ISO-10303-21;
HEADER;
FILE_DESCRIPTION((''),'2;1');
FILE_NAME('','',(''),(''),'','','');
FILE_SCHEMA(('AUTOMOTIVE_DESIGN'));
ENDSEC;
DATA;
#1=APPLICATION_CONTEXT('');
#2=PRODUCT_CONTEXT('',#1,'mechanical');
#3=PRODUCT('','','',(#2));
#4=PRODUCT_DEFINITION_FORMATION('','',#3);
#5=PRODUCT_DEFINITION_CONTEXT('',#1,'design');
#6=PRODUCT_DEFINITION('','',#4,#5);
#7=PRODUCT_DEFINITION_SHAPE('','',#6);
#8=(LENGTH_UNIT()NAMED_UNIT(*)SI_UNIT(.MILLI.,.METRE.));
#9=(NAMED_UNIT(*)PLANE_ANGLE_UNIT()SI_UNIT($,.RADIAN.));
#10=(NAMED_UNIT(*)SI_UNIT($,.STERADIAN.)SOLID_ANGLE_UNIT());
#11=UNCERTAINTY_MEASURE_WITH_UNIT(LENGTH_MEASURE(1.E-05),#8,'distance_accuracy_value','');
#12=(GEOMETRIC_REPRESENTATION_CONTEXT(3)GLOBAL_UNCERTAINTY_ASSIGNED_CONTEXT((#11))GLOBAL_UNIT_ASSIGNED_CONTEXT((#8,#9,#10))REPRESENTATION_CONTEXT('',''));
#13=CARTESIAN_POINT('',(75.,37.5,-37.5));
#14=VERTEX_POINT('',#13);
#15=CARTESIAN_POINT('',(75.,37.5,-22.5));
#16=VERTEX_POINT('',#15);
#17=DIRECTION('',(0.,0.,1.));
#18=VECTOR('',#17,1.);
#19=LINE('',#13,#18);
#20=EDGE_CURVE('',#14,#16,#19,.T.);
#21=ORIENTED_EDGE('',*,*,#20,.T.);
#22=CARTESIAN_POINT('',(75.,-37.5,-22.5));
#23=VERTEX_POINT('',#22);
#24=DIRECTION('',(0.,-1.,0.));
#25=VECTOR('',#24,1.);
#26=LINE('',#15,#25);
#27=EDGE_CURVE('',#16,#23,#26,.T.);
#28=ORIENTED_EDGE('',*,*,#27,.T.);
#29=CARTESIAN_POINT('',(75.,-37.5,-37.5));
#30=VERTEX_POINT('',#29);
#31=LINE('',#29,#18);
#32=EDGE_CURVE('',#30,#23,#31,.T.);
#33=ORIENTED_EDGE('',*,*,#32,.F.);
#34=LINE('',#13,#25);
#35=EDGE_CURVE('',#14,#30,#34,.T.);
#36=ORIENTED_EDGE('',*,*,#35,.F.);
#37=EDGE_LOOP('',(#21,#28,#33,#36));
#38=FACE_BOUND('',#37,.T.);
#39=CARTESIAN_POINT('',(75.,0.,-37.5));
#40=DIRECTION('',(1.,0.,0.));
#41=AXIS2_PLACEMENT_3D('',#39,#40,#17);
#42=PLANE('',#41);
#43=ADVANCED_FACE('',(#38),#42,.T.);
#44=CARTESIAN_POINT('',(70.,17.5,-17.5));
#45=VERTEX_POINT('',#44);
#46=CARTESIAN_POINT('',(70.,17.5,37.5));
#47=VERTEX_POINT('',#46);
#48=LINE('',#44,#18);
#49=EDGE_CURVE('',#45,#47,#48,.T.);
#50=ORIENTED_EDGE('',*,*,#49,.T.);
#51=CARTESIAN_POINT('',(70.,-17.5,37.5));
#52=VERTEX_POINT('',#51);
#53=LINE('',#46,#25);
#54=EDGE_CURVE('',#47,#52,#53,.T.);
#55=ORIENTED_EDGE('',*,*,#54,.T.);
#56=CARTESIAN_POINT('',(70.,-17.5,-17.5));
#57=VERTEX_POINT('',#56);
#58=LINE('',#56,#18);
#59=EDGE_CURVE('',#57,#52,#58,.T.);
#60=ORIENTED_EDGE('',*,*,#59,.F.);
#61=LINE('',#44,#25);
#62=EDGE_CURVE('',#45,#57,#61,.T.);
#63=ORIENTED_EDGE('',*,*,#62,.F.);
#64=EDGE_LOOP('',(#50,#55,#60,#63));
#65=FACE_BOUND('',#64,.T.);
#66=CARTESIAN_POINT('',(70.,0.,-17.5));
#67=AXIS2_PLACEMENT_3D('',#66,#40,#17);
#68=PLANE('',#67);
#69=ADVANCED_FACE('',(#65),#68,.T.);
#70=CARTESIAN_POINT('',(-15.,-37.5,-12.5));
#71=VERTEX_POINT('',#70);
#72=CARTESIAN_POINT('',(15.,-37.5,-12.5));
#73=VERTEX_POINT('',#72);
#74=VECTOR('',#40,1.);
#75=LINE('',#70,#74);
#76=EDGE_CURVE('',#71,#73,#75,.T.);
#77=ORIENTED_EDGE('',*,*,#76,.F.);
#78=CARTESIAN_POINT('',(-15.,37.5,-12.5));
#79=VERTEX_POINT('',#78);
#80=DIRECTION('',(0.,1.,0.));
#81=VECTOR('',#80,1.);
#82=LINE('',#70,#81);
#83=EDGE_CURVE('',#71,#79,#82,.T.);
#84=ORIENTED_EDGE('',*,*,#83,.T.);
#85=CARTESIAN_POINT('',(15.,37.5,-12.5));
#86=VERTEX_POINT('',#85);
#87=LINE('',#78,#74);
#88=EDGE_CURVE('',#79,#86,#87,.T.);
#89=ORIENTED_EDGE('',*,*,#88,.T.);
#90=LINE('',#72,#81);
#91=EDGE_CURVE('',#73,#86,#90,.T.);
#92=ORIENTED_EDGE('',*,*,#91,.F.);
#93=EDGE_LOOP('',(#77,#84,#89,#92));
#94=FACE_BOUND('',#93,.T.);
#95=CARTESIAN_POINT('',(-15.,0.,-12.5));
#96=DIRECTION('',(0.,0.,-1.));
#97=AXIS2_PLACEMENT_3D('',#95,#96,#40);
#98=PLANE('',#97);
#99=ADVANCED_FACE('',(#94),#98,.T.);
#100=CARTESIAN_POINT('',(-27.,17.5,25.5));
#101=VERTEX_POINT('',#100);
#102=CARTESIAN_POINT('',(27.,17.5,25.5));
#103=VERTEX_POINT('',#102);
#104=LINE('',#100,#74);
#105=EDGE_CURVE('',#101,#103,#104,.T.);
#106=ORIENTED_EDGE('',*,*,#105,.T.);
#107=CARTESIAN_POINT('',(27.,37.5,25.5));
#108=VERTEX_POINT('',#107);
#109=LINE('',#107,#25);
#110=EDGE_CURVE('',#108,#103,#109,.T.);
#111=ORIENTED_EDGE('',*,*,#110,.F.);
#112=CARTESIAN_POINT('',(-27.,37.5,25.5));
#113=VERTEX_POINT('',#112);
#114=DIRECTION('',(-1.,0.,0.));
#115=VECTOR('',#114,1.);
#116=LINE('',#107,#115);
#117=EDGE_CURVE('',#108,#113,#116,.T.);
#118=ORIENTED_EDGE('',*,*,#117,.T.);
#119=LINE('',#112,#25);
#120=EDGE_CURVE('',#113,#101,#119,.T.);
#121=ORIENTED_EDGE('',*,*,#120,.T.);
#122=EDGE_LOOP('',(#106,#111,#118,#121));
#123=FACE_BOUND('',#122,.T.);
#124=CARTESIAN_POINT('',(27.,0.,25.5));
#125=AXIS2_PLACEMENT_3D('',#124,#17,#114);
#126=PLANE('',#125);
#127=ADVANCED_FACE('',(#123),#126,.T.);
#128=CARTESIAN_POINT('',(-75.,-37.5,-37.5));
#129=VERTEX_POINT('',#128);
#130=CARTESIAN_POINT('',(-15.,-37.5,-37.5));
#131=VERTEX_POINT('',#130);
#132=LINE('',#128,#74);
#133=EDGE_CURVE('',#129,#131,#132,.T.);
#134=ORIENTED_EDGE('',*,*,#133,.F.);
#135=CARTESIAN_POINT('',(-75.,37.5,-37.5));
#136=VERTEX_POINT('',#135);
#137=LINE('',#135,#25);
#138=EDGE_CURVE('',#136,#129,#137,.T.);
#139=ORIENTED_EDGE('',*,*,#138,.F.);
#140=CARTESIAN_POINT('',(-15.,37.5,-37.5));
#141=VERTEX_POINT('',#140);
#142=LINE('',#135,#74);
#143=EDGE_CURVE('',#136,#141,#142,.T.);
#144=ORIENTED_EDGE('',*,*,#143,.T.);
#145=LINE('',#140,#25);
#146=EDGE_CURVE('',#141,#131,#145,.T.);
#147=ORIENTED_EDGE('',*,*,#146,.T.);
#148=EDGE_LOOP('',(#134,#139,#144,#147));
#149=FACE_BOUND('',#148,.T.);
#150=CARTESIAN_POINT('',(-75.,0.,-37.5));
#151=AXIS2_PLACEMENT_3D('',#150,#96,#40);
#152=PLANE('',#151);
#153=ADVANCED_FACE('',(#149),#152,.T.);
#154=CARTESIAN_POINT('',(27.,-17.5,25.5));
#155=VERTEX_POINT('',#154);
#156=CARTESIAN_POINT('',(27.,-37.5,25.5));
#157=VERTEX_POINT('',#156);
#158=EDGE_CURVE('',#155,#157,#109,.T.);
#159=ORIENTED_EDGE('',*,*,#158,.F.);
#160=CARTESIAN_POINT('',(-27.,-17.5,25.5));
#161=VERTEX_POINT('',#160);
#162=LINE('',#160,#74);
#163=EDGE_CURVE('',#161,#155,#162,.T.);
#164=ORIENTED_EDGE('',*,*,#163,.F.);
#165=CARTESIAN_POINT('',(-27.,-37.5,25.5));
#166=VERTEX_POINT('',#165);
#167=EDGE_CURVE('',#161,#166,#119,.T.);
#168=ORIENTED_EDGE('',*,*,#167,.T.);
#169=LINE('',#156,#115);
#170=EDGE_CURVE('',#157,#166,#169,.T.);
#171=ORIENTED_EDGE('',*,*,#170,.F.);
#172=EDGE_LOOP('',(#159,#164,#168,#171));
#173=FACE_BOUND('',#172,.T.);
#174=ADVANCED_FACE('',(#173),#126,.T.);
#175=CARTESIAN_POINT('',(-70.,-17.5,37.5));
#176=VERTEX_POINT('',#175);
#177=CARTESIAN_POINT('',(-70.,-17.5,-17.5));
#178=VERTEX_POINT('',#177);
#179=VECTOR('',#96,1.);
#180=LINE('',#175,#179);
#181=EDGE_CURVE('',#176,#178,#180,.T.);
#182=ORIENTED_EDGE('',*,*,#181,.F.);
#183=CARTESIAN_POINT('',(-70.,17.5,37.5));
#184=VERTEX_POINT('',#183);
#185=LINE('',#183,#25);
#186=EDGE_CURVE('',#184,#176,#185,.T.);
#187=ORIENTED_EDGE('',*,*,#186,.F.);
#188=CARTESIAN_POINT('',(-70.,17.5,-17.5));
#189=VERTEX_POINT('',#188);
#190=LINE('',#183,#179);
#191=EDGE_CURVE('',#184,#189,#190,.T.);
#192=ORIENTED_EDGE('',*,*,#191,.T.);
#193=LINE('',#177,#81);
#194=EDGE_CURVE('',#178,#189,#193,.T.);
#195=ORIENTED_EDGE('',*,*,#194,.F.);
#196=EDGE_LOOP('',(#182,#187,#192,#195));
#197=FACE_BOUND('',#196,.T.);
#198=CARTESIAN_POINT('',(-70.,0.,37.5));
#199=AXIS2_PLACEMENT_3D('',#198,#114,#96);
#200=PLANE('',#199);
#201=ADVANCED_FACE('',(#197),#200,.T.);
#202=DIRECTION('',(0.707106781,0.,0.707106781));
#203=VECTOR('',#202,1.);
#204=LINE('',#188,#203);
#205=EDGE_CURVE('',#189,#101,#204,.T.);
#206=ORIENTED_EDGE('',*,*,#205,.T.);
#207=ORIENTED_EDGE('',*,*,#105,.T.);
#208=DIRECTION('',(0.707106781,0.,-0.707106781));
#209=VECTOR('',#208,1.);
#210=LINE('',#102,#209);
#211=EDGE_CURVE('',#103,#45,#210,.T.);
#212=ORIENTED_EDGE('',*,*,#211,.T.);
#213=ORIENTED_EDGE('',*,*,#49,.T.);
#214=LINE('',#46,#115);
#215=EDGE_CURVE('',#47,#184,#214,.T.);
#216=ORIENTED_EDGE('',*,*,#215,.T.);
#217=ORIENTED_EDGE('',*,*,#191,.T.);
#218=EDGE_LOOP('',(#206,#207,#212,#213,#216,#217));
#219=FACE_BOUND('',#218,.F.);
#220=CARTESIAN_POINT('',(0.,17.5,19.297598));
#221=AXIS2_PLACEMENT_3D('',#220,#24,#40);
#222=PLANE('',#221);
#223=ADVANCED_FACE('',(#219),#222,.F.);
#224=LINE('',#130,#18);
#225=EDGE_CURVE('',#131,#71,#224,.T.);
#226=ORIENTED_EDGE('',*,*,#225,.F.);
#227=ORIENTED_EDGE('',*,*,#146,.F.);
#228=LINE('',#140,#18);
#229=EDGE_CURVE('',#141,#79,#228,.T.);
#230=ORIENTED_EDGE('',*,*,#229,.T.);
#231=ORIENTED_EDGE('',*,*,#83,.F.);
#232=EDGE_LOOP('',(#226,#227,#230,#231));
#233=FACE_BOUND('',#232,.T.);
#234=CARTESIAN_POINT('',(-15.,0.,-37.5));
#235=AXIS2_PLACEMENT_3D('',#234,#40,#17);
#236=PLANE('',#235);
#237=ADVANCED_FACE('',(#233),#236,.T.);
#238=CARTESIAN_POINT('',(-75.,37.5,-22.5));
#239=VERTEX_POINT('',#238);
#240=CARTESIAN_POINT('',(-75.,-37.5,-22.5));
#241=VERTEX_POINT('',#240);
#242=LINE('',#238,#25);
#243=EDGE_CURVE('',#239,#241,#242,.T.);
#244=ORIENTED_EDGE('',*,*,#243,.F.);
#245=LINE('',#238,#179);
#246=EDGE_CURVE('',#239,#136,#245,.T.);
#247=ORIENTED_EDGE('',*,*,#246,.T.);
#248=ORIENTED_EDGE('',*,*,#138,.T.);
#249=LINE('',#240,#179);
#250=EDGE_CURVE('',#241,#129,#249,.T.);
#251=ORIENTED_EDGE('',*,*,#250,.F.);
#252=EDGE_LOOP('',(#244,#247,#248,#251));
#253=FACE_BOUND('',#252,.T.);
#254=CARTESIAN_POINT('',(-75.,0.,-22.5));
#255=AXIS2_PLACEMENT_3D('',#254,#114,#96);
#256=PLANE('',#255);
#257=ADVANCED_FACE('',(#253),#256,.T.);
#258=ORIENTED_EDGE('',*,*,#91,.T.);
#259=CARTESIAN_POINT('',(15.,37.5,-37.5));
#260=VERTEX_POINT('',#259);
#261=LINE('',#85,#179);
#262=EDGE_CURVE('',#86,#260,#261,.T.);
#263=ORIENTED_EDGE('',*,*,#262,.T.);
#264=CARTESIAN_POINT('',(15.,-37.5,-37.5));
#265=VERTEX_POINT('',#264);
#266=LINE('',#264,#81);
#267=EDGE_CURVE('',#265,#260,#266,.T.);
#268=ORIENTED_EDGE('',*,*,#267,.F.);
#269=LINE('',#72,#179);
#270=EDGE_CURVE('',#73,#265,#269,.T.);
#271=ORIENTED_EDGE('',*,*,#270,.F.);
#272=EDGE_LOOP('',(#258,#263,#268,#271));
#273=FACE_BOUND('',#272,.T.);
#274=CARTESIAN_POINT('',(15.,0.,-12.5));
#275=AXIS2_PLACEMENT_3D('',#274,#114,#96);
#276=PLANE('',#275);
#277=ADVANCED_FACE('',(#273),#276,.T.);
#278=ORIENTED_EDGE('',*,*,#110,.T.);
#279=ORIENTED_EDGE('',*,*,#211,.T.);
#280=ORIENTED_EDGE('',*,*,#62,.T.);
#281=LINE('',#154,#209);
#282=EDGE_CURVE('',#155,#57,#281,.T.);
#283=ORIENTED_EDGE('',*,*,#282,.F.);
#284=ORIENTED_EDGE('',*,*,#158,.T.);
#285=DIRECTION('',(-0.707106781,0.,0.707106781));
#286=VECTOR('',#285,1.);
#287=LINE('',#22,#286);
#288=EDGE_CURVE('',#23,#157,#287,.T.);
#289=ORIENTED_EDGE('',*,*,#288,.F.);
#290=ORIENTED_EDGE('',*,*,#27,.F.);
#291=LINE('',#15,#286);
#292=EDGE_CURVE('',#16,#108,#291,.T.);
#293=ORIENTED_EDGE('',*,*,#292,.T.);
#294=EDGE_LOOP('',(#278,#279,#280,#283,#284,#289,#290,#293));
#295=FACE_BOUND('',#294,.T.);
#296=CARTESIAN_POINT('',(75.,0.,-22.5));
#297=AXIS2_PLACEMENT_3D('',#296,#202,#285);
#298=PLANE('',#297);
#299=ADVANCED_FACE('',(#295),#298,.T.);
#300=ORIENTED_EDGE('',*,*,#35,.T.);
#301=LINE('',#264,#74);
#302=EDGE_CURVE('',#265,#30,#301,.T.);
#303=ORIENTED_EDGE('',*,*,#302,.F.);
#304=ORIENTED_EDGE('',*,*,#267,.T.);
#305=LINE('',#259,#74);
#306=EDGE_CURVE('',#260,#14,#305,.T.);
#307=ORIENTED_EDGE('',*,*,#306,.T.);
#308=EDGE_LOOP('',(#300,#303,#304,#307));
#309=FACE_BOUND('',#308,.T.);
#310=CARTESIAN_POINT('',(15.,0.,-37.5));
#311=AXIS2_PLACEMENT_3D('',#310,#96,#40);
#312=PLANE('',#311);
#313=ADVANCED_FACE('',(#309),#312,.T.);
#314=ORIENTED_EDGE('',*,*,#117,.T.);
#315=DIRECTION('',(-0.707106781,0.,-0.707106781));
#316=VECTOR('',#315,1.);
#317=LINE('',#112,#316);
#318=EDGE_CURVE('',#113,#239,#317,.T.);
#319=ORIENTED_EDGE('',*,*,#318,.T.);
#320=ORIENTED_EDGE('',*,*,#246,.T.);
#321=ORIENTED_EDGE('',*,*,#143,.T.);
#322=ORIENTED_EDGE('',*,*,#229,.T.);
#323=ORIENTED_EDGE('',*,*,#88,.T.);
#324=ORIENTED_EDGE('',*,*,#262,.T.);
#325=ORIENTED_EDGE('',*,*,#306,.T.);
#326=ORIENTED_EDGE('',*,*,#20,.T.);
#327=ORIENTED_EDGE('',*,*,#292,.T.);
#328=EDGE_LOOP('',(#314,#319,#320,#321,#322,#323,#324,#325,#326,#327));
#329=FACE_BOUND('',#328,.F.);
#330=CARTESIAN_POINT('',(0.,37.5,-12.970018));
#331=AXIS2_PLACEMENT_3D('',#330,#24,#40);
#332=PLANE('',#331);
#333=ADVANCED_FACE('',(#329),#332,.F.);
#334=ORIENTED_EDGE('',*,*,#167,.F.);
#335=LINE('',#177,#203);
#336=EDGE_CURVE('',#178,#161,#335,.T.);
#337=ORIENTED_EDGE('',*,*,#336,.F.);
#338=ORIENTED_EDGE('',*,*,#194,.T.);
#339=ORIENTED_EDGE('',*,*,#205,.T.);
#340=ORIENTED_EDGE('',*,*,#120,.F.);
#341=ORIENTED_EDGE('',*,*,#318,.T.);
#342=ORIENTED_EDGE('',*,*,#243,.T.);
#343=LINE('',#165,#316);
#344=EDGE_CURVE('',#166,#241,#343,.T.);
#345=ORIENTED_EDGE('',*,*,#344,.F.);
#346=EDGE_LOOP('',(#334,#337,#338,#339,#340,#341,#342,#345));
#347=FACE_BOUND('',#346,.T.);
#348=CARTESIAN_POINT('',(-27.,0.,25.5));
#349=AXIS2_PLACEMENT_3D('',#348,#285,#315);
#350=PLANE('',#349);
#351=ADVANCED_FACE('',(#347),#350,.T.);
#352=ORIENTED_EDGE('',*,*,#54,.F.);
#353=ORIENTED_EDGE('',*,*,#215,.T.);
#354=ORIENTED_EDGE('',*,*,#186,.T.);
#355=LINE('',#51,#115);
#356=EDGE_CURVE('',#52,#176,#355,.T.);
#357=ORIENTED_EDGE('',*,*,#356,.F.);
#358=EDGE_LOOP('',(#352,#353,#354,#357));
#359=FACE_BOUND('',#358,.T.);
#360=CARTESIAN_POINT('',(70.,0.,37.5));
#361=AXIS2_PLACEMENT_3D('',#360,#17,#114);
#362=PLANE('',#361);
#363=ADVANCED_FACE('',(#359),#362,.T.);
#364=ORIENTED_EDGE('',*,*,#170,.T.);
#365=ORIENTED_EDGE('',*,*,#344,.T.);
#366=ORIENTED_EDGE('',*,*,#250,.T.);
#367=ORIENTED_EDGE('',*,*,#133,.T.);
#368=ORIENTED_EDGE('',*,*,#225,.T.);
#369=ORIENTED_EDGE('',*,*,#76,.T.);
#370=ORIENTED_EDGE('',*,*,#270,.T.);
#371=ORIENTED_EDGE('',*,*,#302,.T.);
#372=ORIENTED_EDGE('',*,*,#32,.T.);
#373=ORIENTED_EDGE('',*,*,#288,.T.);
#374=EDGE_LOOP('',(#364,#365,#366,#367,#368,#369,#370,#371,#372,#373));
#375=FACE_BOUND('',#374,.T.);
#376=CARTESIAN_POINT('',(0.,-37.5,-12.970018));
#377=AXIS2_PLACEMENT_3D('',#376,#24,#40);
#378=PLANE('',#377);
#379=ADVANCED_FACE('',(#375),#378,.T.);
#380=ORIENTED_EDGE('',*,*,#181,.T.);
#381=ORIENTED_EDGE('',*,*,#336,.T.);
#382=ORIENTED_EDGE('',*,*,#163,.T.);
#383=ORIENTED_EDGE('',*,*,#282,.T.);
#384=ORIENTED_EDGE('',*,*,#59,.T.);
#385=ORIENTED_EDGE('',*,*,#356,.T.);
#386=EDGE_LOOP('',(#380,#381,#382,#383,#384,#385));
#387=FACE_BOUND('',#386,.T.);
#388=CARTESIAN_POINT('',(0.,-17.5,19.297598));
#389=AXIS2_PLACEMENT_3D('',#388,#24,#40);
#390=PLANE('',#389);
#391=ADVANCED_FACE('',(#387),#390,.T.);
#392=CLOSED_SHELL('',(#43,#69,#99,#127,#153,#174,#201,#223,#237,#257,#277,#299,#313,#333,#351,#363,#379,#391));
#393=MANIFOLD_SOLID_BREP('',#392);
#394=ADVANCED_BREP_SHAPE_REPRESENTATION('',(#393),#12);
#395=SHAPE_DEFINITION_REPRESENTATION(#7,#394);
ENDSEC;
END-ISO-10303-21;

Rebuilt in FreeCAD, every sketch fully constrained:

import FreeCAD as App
import Part
import Sketcher
Q = App.Units.Quantity

doc = App.newDocument("Part")
params = doc.addObject("Spreadsheet::Sheet", "Params")
for row, (alias, value) in enumerate([
    ("sketch1_width", "60 mm"),
    ("sketch1_width2", "54 mm"),
    ("sketch1_width3", "30 mm"),
    ("sketch1_height", "15 mm"),
    ("sketch1_height2", "25 mm"),
    ("pad1_length", "75 mm"),
    ("sketch2_width", "140 mm"),
    ("sketch2_width2", "54 mm"),
    ("sketch2_height", "55 mm"),
    ("pad2_length", "35 mm"),
], start=1):
    params.set(f"A{row}", alias)
    params.set(f"B{row}", "=" + value)
    params.setAlias(f"B{row}", alias)

body = doc.addObject("PartDesign::Body", "Body")

# Sketch on XZ plane
sketch1 = body.newObject("Sketcher::SketchObject", "Sketch")
sketch1.AttachmentSupport = (doc.getObject("XZ_Plane"), [""])
sketch1.MapMode = "FlatFace"
sketch1.addGeometry(Part.LineSegment(App.Vector(15, -37.5, 0), App.Vector(75, -37.5, 0)), False)
sketch1.addGeometry(Part.LineSegment(App.Vector(75, -37.5, 0), App.Vector(75, -22.5, 0)), False)
sketch1.addGeometry(Part.LineSegment(App.Vector(75, -22.5, 0), App.Vector(27, 25.5, 0)), False)
sketch1.addGeometry(Part.LineSegment(App.Vector(27, 25.5, 0), App.Vector(-27, 25.5, 0)), False)
sketch1.addGeometry(Part.LineSegment(App.Vector(-27, 25.5, 0), App.Vector(-75, -22.5, 0)), False)
sketch1.addGeometry(Part.LineSegment(App.Vector(-75, -22.5, 0), App.Vector(-75, -37.5, 0)), False)
sketch1.addGeometry(Part.LineSegment(App.Vector(-75, -37.5, 0), App.Vector(-15, -37.5, 0)), False)
sketch1.addGeometry(Part.LineSegment(App.Vector(-15, -37.5, 0), App.Vector(-15, -12.5, 0)), False)
sketch1.addGeometry(Part.LineSegment(App.Vector(-15, -12.5, 0), App.Vector(15, -12.5, 0)), False)
sketch1.addGeometry(Part.LineSegment(App.Vector(15, -12.5, 0), App.Vector(15, -37.5, 0)), False)
sketch1.addConstraint(Sketcher.Constraint("Coincident", 0, 2, 1, 1))
sketch1.addConstraint(Sketcher.Constraint("Coincident", 1, 2, 2, 1))
sketch1.addConstraint(Sketcher.Constraint("Coincident", 2, 2, 3, 1))
sketch1.addConstraint(Sketcher.Constraint("Coincident", 3, 2, 4, 1))
sketch1.addConstraint(Sketcher.Constraint("Coincident", 4, 2, 5, 1))
sketch1.addConstraint(Sketcher.Constraint("Coincident", 5, 2, 6, 1))
sketch1.addConstraint(Sketcher.Constraint("Coincident", 6, 2, 7, 1))
sketch1.addConstraint(Sketcher.Constraint("Coincident", 7, 2, 8, 1))
sketch1.addConstraint(Sketcher.Constraint("Coincident", 8, 2, 9, 1))
sketch1.addConstraint(Sketcher.Constraint("Coincident", 9, 2, 0, 1))
sketch1.addConstraint(Sketcher.Constraint("Horizontal", 0))
sketch1.addConstraint(Sketcher.Constraint("Vertical", 1))
sketch1.addConstraint(Sketcher.Constraint("Horizontal", 3))
sketch1.addConstraint(Sketcher.Constraint("Vertical", 5))
sketch1.addConstraint(Sketcher.Constraint("Horizontal", 6))
sketch1.addConstraint(Sketcher.Constraint("Vertical", 7))
sketch1.addConstraint(Sketcher.Constraint("Horizontal", 8))
sketch1.addConstraint(Sketcher.Constraint("Vertical", 9))
sketch1.addConstraint(Sketcher.Constraint("Symmetric", 1, 2, 4, 2, -2))
sketch1.addConstraint(Sketcher.Constraint("Symmetric", 6, 2, 9, 2, -2))
sketch1.addConstraint(Sketcher.Constraint("Perpendicular", 2, 4))
sketch1.addConstraint(Sketcher.Constraint("Equal", 2, 4))
sketch1.addConstraint(Sketcher.Constraint("DistanceX", 0, 1, 0, 2, Q("60 mm")))
sketch1.addConstraint(Sketcher.Constraint("DistanceX", 3, 2, 3, 1, Q("54 mm")))
sketch1.addConstraint(Sketcher.Constraint("DistanceX", 8, 1, 8, 2, Q("30 mm")))
sketch1.addConstraint(Sketcher.Constraint("DistanceY", 1, 1, 1, 2, Q("15 mm")))
sketch1.addConstraint(Sketcher.Constraint("DistanceY", 7, 1, 7, 2, Q("25 mm")))
sketch1.addConstraint(Sketcher.Constraint("DistanceY", 0, 2, -1, 1, Q("37.5 mm")))
sketch1.setExpression("Constraints[22]", "Params.sketch1_width")
sketch1.setExpression("Constraints[23]", "Params.sketch1_width2")
sketch1.setExpression("Constraints[24]", "Params.sketch1_width3")
sketch1.setExpression("Constraints[25]", "Params.sketch1_height")
sketch1.setExpression("Constraints[26]", "Params.sketch1_height2")
pad1 = body.newObject("PartDesign::Pad", "Pad")
pad1.Profile = sketch1
pad1.setExpression("Length", "Params.pad1_length")
pad1.Midplane = True

# Sketch on XZ plane
sketch2 = body.newObject("Sketcher::SketchObject", "Sketch001")
sketch2.AttachmentSupport = (doc.getObject("XZ_Plane"), [""])
sketch2.MapMode = "FlatFace"
sketch2.addGeometry(Part.LineSegment(App.Vector(27, 25.5, 0), App.Vector(70, -17.5, 0)), False)
sketch2.addGeometry(Part.LineSegment(App.Vector(70, -17.5, 0), App.Vector(70, 37.5, 0)), False)
sketch2.addGeometry(Part.LineSegment(App.Vector(70, 37.5, 0), App.Vector(-70, 37.5, 0)), False)
sketch2.addGeometry(Part.LineSegment(App.Vector(-70, 37.5, 0), App.Vector(-70, -17.5, 0)), False)
sketch2.addGeometry(Part.LineSegment(App.Vector(-70, -17.5, 0), App.Vector(-27, 25.5, 0)), False)
sketch2.addGeometry(Part.LineSegment(App.Vector(-27, 25.5, 0), App.Vector(27, 25.5, 0)), False)
sketch2.addConstraint(Sketcher.Constraint("Coincident", 0, 2, 1, 1))
sketch2.addConstraint(Sketcher.Constraint("Coincident", 1, 2, 2, 1))
sketch2.addConstraint(Sketcher.Constraint("Coincident", 2, 2, 3, 1))
sketch2.addConstraint(Sketcher.Constraint("Coincident", 3, 2, 4, 1))
sketch2.addConstraint(Sketcher.Constraint("Coincident", 4, 2, 5, 1))
sketch2.addConstraint(Sketcher.Constraint("Coincident", 5, 2, 0, 1))
sketch2.addConstraint(Sketcher.Constraint("Vertical", 1))
sketch2.addConstraint(Sketcher.Constraint("Horizontal", 2))
sketch2.addConstraint(Sketcher.Constraint("Vertical", 3))
sketch2.addConstraint(Sketcher.Constraint("Horizontal", 5))
sketch2.addConstraint(Sketcher.Constraint("Symmetric", 0, 2, 3, 2, -2))
sketch2.addConstraint(Sketcher.Constraint("Perpendicular", 0, 4))
sketch2.addConstraint(Sketcher.Constraint("Equal", 0, 4))
sketch2.addConstraint(Sketcher.Constraint("DistanceX", 2, 2, 2, 1, Q("140 mm")))
sketch2.addConstraint(Sketcher.Constraint("DistanceX", 5, 1, 5, 2, Q("54 mm")))
sketch2.addConstraint(Sketcher.Constraint("DistanceY", 1, 1, 1, 2, Q("55 mm")))
sketch2.addConstraint(Sketcher.Constraint("DistanceY", 0, 2, -1, 1, Q("17.5 mm")))
sketch2.setExpression("Constraints[13]", "Params.sketch2_width")
sketch2.setExpression("Constraints[14]", "Params.sketch2_width2")
sketch2.setExpression("Constraints[15]", "Params.sketch2_height")
pad2 = body.newObject("PartDesign::Pad", "Pad001")
pad2.Profile = sketch2
pad2.setExpression("Length", "Params.pad2_length")
pad2.Midplane = True

doc.recompute()
